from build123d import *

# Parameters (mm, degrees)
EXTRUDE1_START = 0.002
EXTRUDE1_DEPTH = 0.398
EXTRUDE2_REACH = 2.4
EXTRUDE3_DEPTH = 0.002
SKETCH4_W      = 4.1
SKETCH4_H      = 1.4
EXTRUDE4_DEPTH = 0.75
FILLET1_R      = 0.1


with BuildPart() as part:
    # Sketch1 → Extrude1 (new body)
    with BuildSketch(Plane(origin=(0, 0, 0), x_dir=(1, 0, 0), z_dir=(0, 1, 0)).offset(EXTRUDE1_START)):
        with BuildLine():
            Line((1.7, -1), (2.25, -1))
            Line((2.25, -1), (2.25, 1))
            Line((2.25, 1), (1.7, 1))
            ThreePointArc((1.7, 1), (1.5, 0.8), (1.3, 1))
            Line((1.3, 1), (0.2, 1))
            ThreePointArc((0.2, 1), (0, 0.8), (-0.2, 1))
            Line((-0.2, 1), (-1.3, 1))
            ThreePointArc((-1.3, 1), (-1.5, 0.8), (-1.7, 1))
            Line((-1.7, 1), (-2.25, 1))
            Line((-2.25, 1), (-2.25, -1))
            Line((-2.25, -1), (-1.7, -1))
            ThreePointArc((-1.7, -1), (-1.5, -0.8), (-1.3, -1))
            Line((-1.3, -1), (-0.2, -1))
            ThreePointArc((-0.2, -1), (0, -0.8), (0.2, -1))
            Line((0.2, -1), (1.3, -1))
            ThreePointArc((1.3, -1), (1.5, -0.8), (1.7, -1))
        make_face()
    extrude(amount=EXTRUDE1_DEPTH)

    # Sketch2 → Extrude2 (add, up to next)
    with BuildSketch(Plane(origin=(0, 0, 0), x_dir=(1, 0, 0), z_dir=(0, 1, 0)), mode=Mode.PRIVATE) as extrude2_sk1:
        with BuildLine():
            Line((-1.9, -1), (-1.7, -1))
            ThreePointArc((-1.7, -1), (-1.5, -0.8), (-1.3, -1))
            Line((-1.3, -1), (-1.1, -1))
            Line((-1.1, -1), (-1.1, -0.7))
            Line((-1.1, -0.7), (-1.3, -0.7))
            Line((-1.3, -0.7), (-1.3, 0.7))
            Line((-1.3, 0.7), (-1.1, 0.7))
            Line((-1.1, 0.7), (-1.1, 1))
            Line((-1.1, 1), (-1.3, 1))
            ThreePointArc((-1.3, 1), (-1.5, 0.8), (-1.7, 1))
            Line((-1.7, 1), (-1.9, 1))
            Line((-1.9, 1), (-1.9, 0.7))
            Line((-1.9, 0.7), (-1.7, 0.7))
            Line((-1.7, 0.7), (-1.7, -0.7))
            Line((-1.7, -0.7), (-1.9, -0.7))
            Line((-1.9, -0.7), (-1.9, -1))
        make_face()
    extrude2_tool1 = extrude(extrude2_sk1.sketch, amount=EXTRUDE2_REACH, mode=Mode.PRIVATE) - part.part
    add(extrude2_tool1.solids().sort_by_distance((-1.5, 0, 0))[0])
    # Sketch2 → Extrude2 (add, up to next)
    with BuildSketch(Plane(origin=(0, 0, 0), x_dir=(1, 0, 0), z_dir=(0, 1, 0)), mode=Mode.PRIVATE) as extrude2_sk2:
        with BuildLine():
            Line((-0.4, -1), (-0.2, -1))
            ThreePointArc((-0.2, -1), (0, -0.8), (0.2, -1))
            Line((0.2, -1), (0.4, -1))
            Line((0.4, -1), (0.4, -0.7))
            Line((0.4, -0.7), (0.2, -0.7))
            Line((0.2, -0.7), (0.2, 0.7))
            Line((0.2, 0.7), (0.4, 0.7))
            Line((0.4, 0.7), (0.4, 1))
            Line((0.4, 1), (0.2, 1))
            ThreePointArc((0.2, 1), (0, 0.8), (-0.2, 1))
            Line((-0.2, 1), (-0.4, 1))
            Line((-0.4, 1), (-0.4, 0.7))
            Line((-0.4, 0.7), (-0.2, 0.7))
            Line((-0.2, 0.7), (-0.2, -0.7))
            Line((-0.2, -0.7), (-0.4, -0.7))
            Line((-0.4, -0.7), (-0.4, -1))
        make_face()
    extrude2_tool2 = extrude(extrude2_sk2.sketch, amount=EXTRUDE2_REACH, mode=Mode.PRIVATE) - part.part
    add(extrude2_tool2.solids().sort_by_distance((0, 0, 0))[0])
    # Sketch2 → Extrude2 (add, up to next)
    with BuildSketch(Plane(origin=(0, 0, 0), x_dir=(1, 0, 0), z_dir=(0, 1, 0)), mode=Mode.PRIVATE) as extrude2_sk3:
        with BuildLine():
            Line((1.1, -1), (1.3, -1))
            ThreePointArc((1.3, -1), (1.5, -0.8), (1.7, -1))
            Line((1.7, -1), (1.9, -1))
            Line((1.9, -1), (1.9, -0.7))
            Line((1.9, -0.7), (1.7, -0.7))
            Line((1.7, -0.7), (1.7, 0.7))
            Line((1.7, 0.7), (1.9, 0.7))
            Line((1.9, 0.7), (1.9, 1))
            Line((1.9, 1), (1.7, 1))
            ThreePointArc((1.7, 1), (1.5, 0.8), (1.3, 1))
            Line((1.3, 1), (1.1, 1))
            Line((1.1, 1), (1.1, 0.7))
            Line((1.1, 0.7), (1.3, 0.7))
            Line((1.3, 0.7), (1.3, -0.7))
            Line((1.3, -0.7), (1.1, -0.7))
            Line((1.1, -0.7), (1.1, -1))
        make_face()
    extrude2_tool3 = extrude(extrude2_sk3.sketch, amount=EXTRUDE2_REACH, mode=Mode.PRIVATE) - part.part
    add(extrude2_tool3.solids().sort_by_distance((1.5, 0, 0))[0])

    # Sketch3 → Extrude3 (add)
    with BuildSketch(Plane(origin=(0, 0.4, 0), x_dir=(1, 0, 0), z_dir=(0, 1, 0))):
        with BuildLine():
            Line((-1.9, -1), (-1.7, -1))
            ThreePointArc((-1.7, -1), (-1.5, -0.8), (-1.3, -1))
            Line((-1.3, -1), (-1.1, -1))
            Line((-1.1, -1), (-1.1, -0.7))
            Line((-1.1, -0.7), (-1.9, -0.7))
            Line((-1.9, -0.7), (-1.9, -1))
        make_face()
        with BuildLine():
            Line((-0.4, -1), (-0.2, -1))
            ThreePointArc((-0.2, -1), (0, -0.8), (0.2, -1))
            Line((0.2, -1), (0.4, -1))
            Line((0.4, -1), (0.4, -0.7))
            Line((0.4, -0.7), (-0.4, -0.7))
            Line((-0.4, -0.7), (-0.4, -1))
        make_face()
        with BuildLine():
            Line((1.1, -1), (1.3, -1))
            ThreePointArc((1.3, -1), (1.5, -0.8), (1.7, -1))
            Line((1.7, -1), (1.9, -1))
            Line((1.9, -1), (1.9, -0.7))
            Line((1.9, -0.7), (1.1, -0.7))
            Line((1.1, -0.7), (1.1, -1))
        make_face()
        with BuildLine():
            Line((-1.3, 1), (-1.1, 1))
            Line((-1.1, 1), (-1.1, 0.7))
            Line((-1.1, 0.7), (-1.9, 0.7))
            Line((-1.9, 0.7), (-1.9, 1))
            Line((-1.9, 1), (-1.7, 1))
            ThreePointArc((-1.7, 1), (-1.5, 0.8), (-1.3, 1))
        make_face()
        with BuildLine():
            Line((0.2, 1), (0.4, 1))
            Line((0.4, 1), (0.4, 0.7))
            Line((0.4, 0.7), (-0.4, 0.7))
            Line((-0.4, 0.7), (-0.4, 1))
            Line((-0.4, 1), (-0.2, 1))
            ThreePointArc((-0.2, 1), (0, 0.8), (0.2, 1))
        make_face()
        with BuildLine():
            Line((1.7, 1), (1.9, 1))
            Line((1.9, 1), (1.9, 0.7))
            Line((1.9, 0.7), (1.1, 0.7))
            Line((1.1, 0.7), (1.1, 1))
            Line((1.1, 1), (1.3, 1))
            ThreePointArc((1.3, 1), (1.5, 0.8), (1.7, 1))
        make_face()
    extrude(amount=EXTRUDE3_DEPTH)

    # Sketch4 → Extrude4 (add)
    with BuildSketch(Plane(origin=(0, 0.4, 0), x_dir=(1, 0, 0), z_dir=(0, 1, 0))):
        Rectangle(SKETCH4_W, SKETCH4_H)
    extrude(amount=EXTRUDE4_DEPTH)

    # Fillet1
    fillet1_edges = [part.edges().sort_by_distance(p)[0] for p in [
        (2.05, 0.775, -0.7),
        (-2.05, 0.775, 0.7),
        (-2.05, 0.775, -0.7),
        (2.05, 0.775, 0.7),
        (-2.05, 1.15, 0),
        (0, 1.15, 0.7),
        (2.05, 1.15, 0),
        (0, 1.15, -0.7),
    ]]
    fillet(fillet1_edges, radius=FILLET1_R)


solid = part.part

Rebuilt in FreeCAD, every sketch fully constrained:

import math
import FreeCAD as App
import Part
import Sketcher
from FreeCAD import Vector
Q = App.Units.Quantity


def edges_at(feature, points):
    """Names of the edges that pass closest to the given points."""
    edges = feature.Shape.Edges
    near = lambda p: min(range(len(edges)), key=lambda i: edges[i].distToShape(Part.Vertex(*p))[0])
    return sorted({f"Edge{near(p) + 1}" for p in points})


def add_polygon(sketch, points):
    """Adds a closed chain of lines whose ends are joined by coincident constraints."""
    first, n = sketch.GeometryCount, len(points)
    for a, b in zip(points, points[1:] + points[:1]):
        sketch.addGeometry(Part.LineSegment(App.Vector(*a, 0), App.Vector(*b, 0)), False)
    for i in range(n):
        sketch.addConstraint(Sketcher.Constraint("Coincident", first + i, 2, first + (i + 1) % n, 1))

doc = App.newDocument("Part")
body = doc.addObject("PartDesign::Body", "Body")

# Sketch on XZ plane
sketch1 = doc.addObject("Sketcher::SketchObject", "Sketch")
body.addObject(sketch1)
sketch1.AttachmentSupport = (doc.XZ_Plane, [""])
sketch1.MapMode = "FlatFace"
sketch1.AttachmentOffset = App.Placement(Vector(0, 0, -0.002), App.Rotation())
sketch1.addGeometry(Part.LineSegment(Vector(1.7, 1, 0), Vector(2.25, 1, 0)), False)
sketch1.addGeometry(Part.LineSegment(Vector(2.25, 1, 0), Vector(2.25, -1, 0)), False)
sketch1.addGeometry(Part.LineSegment(Vector(2.25, -1, 0), Vector(1.7, -1, 0)), False)
sketch1.addGeometry(Part.ArcOfCircle(Part.Circle(Vector(1.5, -1, 0), Vector(0, 0, 1), 0.2), math.radians(0), math.radians(180)), False)
sketch1.addGeometry(Part.LineSegment(Vector(1.3, -1, 0), Vector(0.2, -1, 0)), False)
sketch1.addGeometry(Part.ArcOfCircle(Part.Circle(Vector(0, -1, 0), Vector(0, 0, 1), 0.2), math.radians(0), math.radians(180)), False)
sketch1.addGeometry(Part.LineSegment(Vector(-0.2, -1, 0), Vector(-1.3, -1, 0)), False)
sketch1.addGeometry(Part.ArcOfCircle(Part.Circle(Vector(-1.5, -1, 0), Vector(0, 0, 1), 0.2), math.radians(0), math.radians(180)), False)
sketch1.addGeometry(Part.LineSegment(Vector(-1.7, -1, 0), Vector(-2.25, -1, 0)), False)
sketch1.addGeometry(Part.LineSegment(Vector(-2.25, -1, 0), Vector(-2.25, 1, 0)), False)
sketch1.addGeometry(Part.LineSegment(Vector(-2.25, 1, 0), Vector(-1.7, 1, 0)), False)
sketch1.addGeometry(Part.ArcOfCircle(Part.Circle(Vector(-1.5, 1, 0), Vector(0, 0, 1), 0.2), math.radians(180), math.radians(360)), False)
sketch1.addGeometry(Part.LineSegment(Vector(-1.3, 1, 0), Vector(-0.2, 1, 0)), False)
sketch1.addGeometry(Part.ArcOfCircle(Part.Circle(Vector(0, 1, 0), Vector(0, 0, 1), 0.2), math.radians(180), math.radians(360)), False)
sketch1.addGeometry(Part.LineSegment(Vector(0.2, 1, 0), Vector(1.3, 1, 0)), False)
sketch1.addGeometry(Part.ArcOfCircle(Part.Circle(Vector(1.5, 1, 0), Vector(0, 0, 1), 0.2), math.radians(180), math.radians(360)), False)
sketch1.addConstraint(Sketcher.Constraint("Coincident", 0, 2, 1, 1))
sketch1.addConstraint(Sketcher.Constraint("Coincident", 1, 2, 2, 1))
sketch1.addConstraint(Sketcher.Constraint("Coincident", 2, 2, 3, 1))
sketch1.addConstraint(Sketcher.Constraint("Coincident", 3, 2, 4, 1))
sketch1.addConstraint(Sketcher.Constraint("Coincident", 4, 2, 5, 1))
sketch1.addConstraint(Sketcher.Constraint("Coincident", 5, 2, 6, 1))
sketch1.addConstraint(Sketcher.Constraint("Coincident", 6, 2, 7, 1))
sketch1.addConstraint(Sketcher.Constraint("Coincident", 7, 2, 8, 1))
sketch1.addConstraint(Sketcher.Constraint("Coincident", 8, 2, 9, 1))
sketch1.addConstraint(Sketcher.Constraint("Coincident", 9, 2, 10, 1))
sketch1.addConstraint(Sketcher.Constraint("Coincident", 10, 2, 11, 1))
sketch1.addConstraint(Sketcher.Constraint("Coincident", 11, 2, 12, 1))
sketch1.addConstraint(Sketcher.Constraint("Coincident", 12, 2, 13, 1))
sketch1.addConstraint(Sketcher.Constraint("Coincident", 13, 2, 14, 1))
sketch1.addConstraint(Sketcher.Constraint("Coincident", 14, 2, 15, 1))
sketch1.addConstraint(Sketcher.Constraint("Coincident", 15, 2, 0, 1))
sketch1.addConstraint(Sketcher.Constraint("Horizontal", 0))
sketch1.addConstraint(Sketcher.Constraint("Vertical", 1))
sketch1.addConstraint(Sketcher.Constraint("Horizontal", 2))
sketch1.addConstraint(Sketcher.Constraint("Horizontal", 4))
sketch1.addConstraint(Sketcher.Constraint("Horizontal", 6))
sketch1.addConstraint(Sketcher.Constraint("Horizontal", 8))
sketch1.addConstraint(Sketcher.Constraint("Vertical", 9))
sketch1.addConstraint(Sketcher.Constraint("Horizontal", 10))
sketch1.addConstraint(Sketcher.Constraint("Horizontal", 12))
sketch1.addConstraint(Sketcher.Constraint("Horizontal", 14))
sketch1.addConstraint(Sketcher.Constraint("Equal", 3, 5))
sketch1.addConstraint(Sketcher.Constraint("Equal", 5, 7))
sketch1.addConstraint(Sketcher.Constraint("Equal", 7, 11))
sketch1.addConstraint(Sketcher.Constraint("Equal", 11, 13))
sketch1.addConstraint(Sketcher.Constraint("Equal", 13, 15))
sketch1.addConstraint(Sketcher.Constraint("Symmetric", 3, 3, 11, 3, -1, 1))
sketch1.addConstraint(Sketcher.Constraint("Symmetric", 5, 3, 13, 3, -1, 1))
sketch1.addConstraint(Sketcher.Constraint("Symmetric", 7, 3, 15, 3, -1, 1))
sketch1.addConstraint(Sketcher.Constraint("Symmetric", 0, 2, 8, 2, -1, 1))
sketch1.addConstraint(Sketcher.Constraint("Symmetric", 3, 3, 7, 3, -2))
sketch1.addConstraint(Sketcher.Constraint("Symmetric", 4, 2, 5, 2, -2))
sketch1.addConstraint(Sketcher.Constraint("Horizontal", 3, 3, 5, 3))
sketch1.addConstraint(Sketcher.Constraint("Horizontal", 15, 3, 0, 2))
sketch1.addConstraint(Sketcher.Constraint("Horizontal", 7, 3, 1, 2))
sketch1.addConstraint(Sketcher.Constraint("Horizontal", 2, 2, 3, 2))
sketch1.addConstraint(Sketcher.Constraint("Horizontal", 0, 2, 9, 2))
sketch1.addConstraint(Sketcher.Constraint("Horizontal", 10, 2, 11, 2))
sketch1.addConstraint(Sketcher.Constraint("Horizontal", 12, 2, 13, 2))
sketch1.addConstraint(Sketcher.Constraint("Radius", 3, Q("0.2 mm")))
sketch1.addConstraint(Sketcher.Constraint("DistanceY", 1, 2, 1, 1, Q("2 mm")))
sketch1.addConstraint(Sketcher.Constraint("DistanceX", 4, 2, 4, 1, Q("1.1 mm")))
sketch1.addConstraint(Sketcher.Constraint("DistanceX", 0, 1, 0, 2, Q("0.55 mm")))
pad1 = doc.addObject("PartDesign::Pad", "Pad")
body.addObject(pad1)
pad1.Profile = sketch1
pad1.Length = 0.398
pad1.Reversed = True

# Sketch on XZ plane
sketch2 = doc.addObject("Sketcher::SketchObject", "Sketch001")
body.addObject(sketch2)
sketch2.AttachmentSupport = (doc.XZ_Plane, [""])
sketch2.MapMode = "FlatFace"
sketch2.addGeometry(Part.LineSegment(Vector(-1.9, 1, 0), Vector(-1.7, 1, 0)), False)
sketch2.addGeometry(Part.ArcOfCircle(Part.Circle(Vector(-1.5, 1, 0), Vector(0, 0, 1), 0.2), math.radians(180), math.radians(360)), False)
sketch2.addGeometry(Part.LineSegment(Vector(-1.3, 1, 0), Vector(-1.1, 1, 0)), False)
sketch2.addGeometry(Part.LineSegment(Vector(-1.1, 1, 0), Vector(-1.1, 0.7, 0)), False)
sketch2.addGeometry(Part.LineSegment(Vector(-1.1, 0.7, 0), Vector(-1.3, 0.7, 0)), False)
sketch2.addGeometry(Part.LineSegment(Vector(-1.3, 0.7, 0), Vector(-1.3, -0.7, 0)), False)
sketch2.addGeometry(Part.LineSegment(Vector(-1.3, -0.7, 0), Vector(-1.1, -0.7, 0)), False)
sketch2.addGeometry(Part.LineSegment(Vector(-1.1, -0.7, 0), Vector(-1.1, -1, 0)), False)
sketch2.addGeometry(Part.LineSegment(Vector(-1.1, -1, 0), Vector(-1.3, -1, 0)), False)
sketch2.addGeometry(Part.ArcOfCircle(Part.Circle(Vector(-1.5, -1, 0), Vector(0, 0, 1), 0.2), math.radians(0), math.radians(180)), False)
sketch2.addGeometry(Part.LineSegment(Vector(-1.7, -1, 0), Vector(-1.9, -1, 0)), False)
sketch2.addGeometry(Part.LineSegment(Vector(-1.9, -1, 0), Vector(-1.9, -0.7, 0)), False)
sketch2.addGeometry(Part.LineSegment(Vector(-1.9, -0.7, 0), Vector(-1.7, -0.7, 0)), False)
sketch2.addGeometry(Part.LineSegment(Vector(-1.7, -0.7, 0), Vector(-1.7, 0.7, 0)), False)
sketch2.addGeometry(Part.LineSegment(Vector(-1.7, 0.7, 0), Vector(-1.9, 0.7, 0)), False)
sketch2.addGeometry(Part.LineSegment(Vector(-1.9, 0.7, 0), Vector(-1.9, 1, 0)), False)
sketch2.addConstraint(Sketcher.Constraint("Coincident", 0, 2, 1, 1))
sketch2.addConstraint(Sketcher.Constraint("Coincident", 1, 2, 2, 1))
sketch2.addConstraint(Sketcher.Constraint("Coincident", 2, 2, 3, 1))
sketch2.addConstraint(Sketcher.Constraint("Coincident", 3, 2, 4, 1))
sketch2.addConstraint(Sketcher.Constraint("Coincident", 4, 2, 5, 1))
sketch2.addConstraint(Sketcher.Constraint("Coincident", 5, 2, 6, 1))
sketch2.addConstraint(Sketcher.Constraint("Coincident", 6, 2, 7, 1))
sketch2.addConstraint(Sketcher.Constraint("Coincident", 7, 2, 8, 1))
sketch2.addConstraint(Sketcher.Constraint("Coincident", 8, 2, 9, 1))
sketch2.addConstraint(Sketcher.Constraint("Coincident", 9, 2, 10, 1))
sketch2.addConstraint(Sketcher.Constraint("Coincident", 10, 2, 11, 1))
sketch2.addConstraint(Sketcher.Constraint("Coincident", 11, 2, 12, 1))
sketch2.addConstraint(Sketcher.Constraint("Coincident", 12, 2, 13, 1))
sketch2.addConstraint(Sketcher.Constraint("Coincident", 13, 2, 14, 1))
sketch2.addConstraint(Sketcher.Constraint("Coincident", 14, 2, 15, 1))
sketch2.addConstraint(Sketcher.Constraint("Coincident", 15, 2, 0, 1))
sketch2.addConstraint(Sketcher.Constraint("Horizontal", 0))
sketch2.addConstraint(Sketcher.Constraint("Horizontal", 2))
sketch2.addConstraint(Sketcher.Constraint("Vertical", 3))
sketch2.addConstraint(Sketcher.Constraint("Horizontal", 4))
sketch2.addConstraint(Sketcher.Constraint("Vertical", 5))
sketch2.addConstraint(Sketcher.Constraint("Horizontal", 6))
sketch2.addConstraint(Sketcher.Constraint("Vertical", 7))
sketch2.addConstraint(Sketcher.Constraint("Horizontal", 8))
sketch2.addConstraint(Sketcher.Constraint("Horizontal", 10))
sketch2.addConstraint(Sketcher.Constraint("Vertical", 11))
sketch2.addConstraint(Sketcher.Constraint("Horizontal", 12))
sketch2.addConstraint(Sketcher.Constraint("Vertical", 13))
sketch2.addConstraint(Sketcher.Constraint("Horizontal", 14))
sketch2.addConstraint(Sketcher.Constraint("Vertical", 15))
sketch2.addConstraint(Sketcher.Constraint("Equal", 1, 9))
sketch2.addConstraint(Sketcher.Constraint("Symmetric", 1, 3, 9, 3, -1))
sketch2.addConstraint(Sketcher.Constraint("Symmetric", 3, 2, 6, 2, -1))
sketch2.addConstraint(Sketcher.Constraint("Symmetric", 11, 2, 14, 2, -1))
sketch2.addConstraint(Sketcher.Constraint("Horizontal", 1, 3, 0, 2))
sketch2.addConstraint(Sketcher.Constraint("Horizontal", 0, 2, 1, 2))
sketch2.addConstraint(Sketcher.Constraint("Horizontal", 9, 3, 7, 2))
sketch2.addConstraint(Sketcher.Constraint("Horizontal", 8, 2, 9, 2))
sketch2.addConstraint(Sketcher.Constraint("Horizontal", 6, 2, 11, 2))
sketch2.addConstraint(Sketcher.Constraint("Vertical", 1, 2, 4, 2))
sketch2.addConstraint(Sketcher.Constraint("Vertical", 9, 2, 12, 2))
sketch2.addConstraint(Sketcher.Constraint("Equal", 0, 2))
sketch2.addConstraint(Sketcher.Constraint("Radius", 1, Q("0.2 mm")))
sketch2.addConstraint(Sketcher.Constraint("DistanceX", 0, 1, 0, 2, Q("0.2 mm")))
sketch2.addConstraint(Sketcher.Constraint("DistanceY", 3, 2, 3, 1, Q("0.3 mm")))
sketch2.addConstraint(Sketcher.Constraint("DistanceY", 5, 2, 5, 1, Q("1.4 mm")))
sketch2.addConstraint(Sketcher.Constraint("DistanceX", 1, 3, -1, 1, Q("1.5 mm")))
pad2 = doc.addObject("PartDesign::Pad", "Pad001")
body.addObject(pad2)
pad2.Profile = sketch2
pad2.Type = "UpToFirst"
pad2.Reversed = True

# Sketch on XZ plane
sketch3 = doc.addObject("Sketcher::SketchObject", "Sketch002")
body.addObject(sketch3)
sketch3.AttachmentSupport = (doc.XZ_Plane, [""])
sketch3.MapMode = "FlatFace"
sketch3.addGeometry(Part.LineSegment(Vector(-0.4, 1, 0), Vector(-0.2, 1, 0)), False)
sketch3.addGeometry(Part.ArcOfCircle(Part.Circle(Vector(0, 1, 0), Vector(0, 0, 1), 0.2), math.radians(180), math.radians(360)), False)
sketch3.addGeometry(Part.LineSegment(Vector(0.2, 1, 0), Vector(0.4, 1, 0)), False)
sketch3.addGeometry(Part.LineSegment(Vector(0.4, 1, 0), Vector(0.4, 0.7, 0)), False)
sketch3.addGeometry(Part.LineSegment(Vector(0.4, 0.7, 0), Vector(0.2, 0.7, 0)), False)
sketch3.addGeometry(Part.LineSegment(Vector(0.2, 0.7, 0), Vector(0.2, -0.7, 0)), False)
sketch3.addGeometry(Part.LineSegment(Vector(0.2, -0.7, 0), Vector(0.4, -0.7, 0)), False)
sketch3.addGeometry(Part.LineSegment(Vector(0.4, -0.7, 0), Vector(0.4, -1, 0)), False)
sketch3.addGeometry(Part.LineSegment(Vector(0.4, -1, 0), Vector(0.2, -1, 0)), False)
sketch3.addGeometry(Part.ArcOfCircle(Part.Circle(Vector(0, -1, 0), Vector(0, 0, 1), 0.2), math.radians(0), math.radians(180)), False)
sketch3.addGeometry(Part.LineSegment(Vector(-0.2, -1, 0), Vector(-0.4, -1, 0)), False)
sketch3.addGeometry(Part.LineSegment(Vector(-0.4, -1, 0), Vector(-0.4, -0.7, 0)), False)
sketch3.addGeometry(Part.LineSegment(Vector(-0.4, -0.7, 0), Vector(-0.2, -0.7, 0)), False)
sketch3.addGeometry(Part.LineSegment(Vector(-0.2, -0.7, 0), Vector(-0.2, 0.7, 0)), False)
sketch3.addGeometry(Part.LineSegment(Vector(-0.2, 0.7, 0), Vector(-0.4, 0.7, 0)), False)
sketch3.addGeometry(Part.LineSegment(Vector(-0.4, 0.7, 0), Vector(-0.4, 1, 0)), False)
sketch3.addConstraint(Sketcher.Constraint("Coincident", 0, 2, 1, 1))
sketch3.addConstraint(Sketcher.Constraint("Coincident", 1, 2, 2, 1))
sketch3.addConstraint(Sketcher.Constraint("Coincident", 2, 2, 3, 1))
sketch3.addConstraint(Sketcher.Constraint("Coincident", 3, 2, 4, 1))
sketch3.addConstraint(Sketcher.Constraint("Coincident", 4, 2, 5, 1))
sketch3.addConstraint(Sketcher.Constraint("Coincident", 5, 2, 6, 1))
sketch3.addConstraint(Sketcher.Constraint("Coincident", 6, 2, 7, 1))
sketch3.addConstraint(Sketcher.Constraint("Coincident", 7, 2, 8, 1))
sketch3.addConstraint(Sketcher.Constraint("Coincident", 8, 2, 9, 1))
sketch3.addConstraint(Sketcher.Constraint("Coincident", 9, 2, 10, 1))
sketch3.addConstraint(Sketcher.Constraint("Coincident", 10, 2, 11, 1))
sketch3.addConstraint(Sketcher.Constraint("Coincident", 11, 2, 12, 1))
sketch3.addConstraint(Sketcher.Constraint("Coincident", 12, 2, 13, 1))
sketch3.addConstraint(Sketcher.Constraint("Coincident", 13, 2, 14, 1))
sketch3.addConstraint(Sketcher.Constraint("Coincident", 14, 2, 15, 1))
sketch3.addConstraint(Sketcher.Constraint("Coincident", 15, 2, 0, 1))
sketch3.addConstraint(Sketcher.Constraint("Horizontal", 0))
sketch3.addConstraint(Sketcher.Constraint("Horizontal", 2))
sketch3.addConstraint(Sketcher.Constraint("Vertical", 3))
sketch3.addConstraint(Sketcher.Constraint("Horizontal", 4))
sketch3.addConstraint(Sketcher.Constraint("Vertical", 5))
sketch3.addConstraint(Sketcher.Constraint("Horizontal", 6))
sketch3.addConstraint(Sketcher.Constraint("Vertical", 7))
sketch3.addConstraint(Sketcher.Constraint("Horizontal", 8))
sketch3.addConstraint(Sketcher.Constraint("Horizontal", 10))
sketch3.addConstraint(Sketcher.Constraint("Vertical", 11))
sketch3.addConstraint(Sketcher.Constraint("Horizontal", 12))
sketch3.addConstraint(Sketcher.Constraint("Vertical", 13))
sketch3.addConstraint(Sketcher.Constraint("Horizontal", 14))
sketch3.addConstraint(Sketcher.Constraint("Vertical", 15))
sketch3.addConstraint(Sketcher.Constraint("Equal", 1, 9))
sketch3.addConstraint(Sketcher.Constraint("Symmetric", 1, 3, 9, 3, -1, 1))
sketch3.addConstraint(Sketcher.Constraint("Symmetric", 2, 2, 10, 2, -1, 1))
sketch3.addConstraint(Sketcher.Constraint("Symmetric", 4, 2, 12, 2, -1, 1))
sketch3.addConstraint(Sketcher.Constraint("Symmetric", 6, 2, 14, 2, -1, 1))
sketch3.addConstraint(Sketcher.Constraint("Symmetric", 0, 2, 1, 2, -2))
sketch3.addConstraint(Sketcher.Constraint("Symmetric", 7, 2, 10, 2, -2))
sketch3.addConstraint(Sketcher.Constraint("Horizontal", 1, 3, 0, 2))
sketch3.addConstraint(Sketcher.Constraint("Horizontal", 6, 2, 11, 2))
sketch3.addConstraint(Sketcher.Constraint("Vertical", 1, 2, 4, 2))
sketch3.addConstraint(Sketcher.Constraint("Radius", 1, Q("0.2 mm")))
sketch3.addConstraint(Sketcher.Constraint("DistanceX", 0, 1, 0, 2, Q("0.2 mm")))
sketch3.addConstraint(Sketcher.Constraint("DistanceY", 3, 2, 3, 1, Q("0.3 mm")))
sketch3.addConstraint(Sketcher.Constraint("DistanceY", 5, 2, 5, 1, Q("1.4 mm")))
pad3 = doc.addObject("PartDesign::Pad", "Pad002")
body.addObject(pad3)
pad3.Profile = sketch3
pad3.Type = "UpToFirst"
pad3.Reversed = True

# Sketch on XZ plane
sketch4 = doc.addObject("Sketcher::SketchObject", "Sketch003")
body.addObject(sketch4)
sketch4.AttachmentSupport = (doc.XZ_Plane, [""])
sketch4.MapMode = "FlatFace"
sketch4.addGeometry(Part.LineSegment(Vector(1.1, 1, 0), Vector(1.3, 1, 0)), False)
sketch4.addGeometry(Part.ArcOfCircle(Part.Circle(Vector(1.5, 1, 0), Vector(0, 0, 1), 0.2), math.radians(180), math.radians(360)), False)
sketch4.addGeometry(Part.LineSegment(Vector(1.7, 1, 0), Vector(1.9, 1, 0)), False)
sketch4.addGeometry(Part.LineSegment(Vector(1.9, 1, 0), Vector(1.9, 0.7, 0)), False)
sketch4.addGeometry(Part.LineSegment(Vector(1.9, 0.7, 0), Vector(1.7, 0.7, 0)), False)
sketch4.addGeometry(Part.LineSegment(Vector(1.7, 0.7, 0), Vector(1.7, -0.7, 0)), False)
sketch4.addGeometry(Part.LineSegment(Vector(1.7, -0.7, 0), Vector(1.9, -0.7, 0)), False)
sketch4.addGeometry(Part.LineSegment(Vector(1.9, -0.7, 0), Vector(1.9, -1, 0)), False)
sketch4.addGeometry(Part.LineSegment(Vector(1.9, -1, 0), Vector(1.7, -1, 0)), False)
sketch4.addGeometry(Part.ArcOfCircle(Part.Circle(Vector(1.5, -1, 0), Vector(0, 0, 1), 0.2), math.radians(0), math.radians(180)), False)
sketch4.addGeometry(Part.LineSegment(Vector(1.3, -1, 0), Vector(1.1, -1, 0)), False)
sketch4.addGeometry(Part.LineSegment(Vector(1.1, -1, 0), Vector(1.1, -0.7, 0)), False)
sketch4.addGeometry(Part.LineSegment(Vector(1.1, -0.7, 0), Vector(1.3, -0.7, 0)), False)
sketch4.addGeometry(Part.LineSegment(Vector(1.3, -0.7, 0), Vector(1.3, 0.7, 0)), False)
sketch4.addGeometry(Part.LineSegment(Vector(1.3, 0.7, 0), Vector(1.1, 0.7, 0)), False)
sketch4.addGeometry(Part.LineSegment(Vector(1.1, 0.7, 0), Vector(1.1, 1, 0)), False)
sketch4.addConstraint(Sketcher.Constraint("Coincident", 0, 2, 1, 1))
sketch4.addConstraint(Sketcher.Constraint("Coincident", 1, 2, 2, 1))
sketch4.addConstraint(Sketcher.Constraint("Coincident", 2, 2, 3, 1))
sketch4.addConstraint(Sketcher.Constraint("Coincident", 3, 2, 4, 1))
sketch4.addConstraint(Sketcher.Constraint("Coincident", 4, 2, 5, 1))
sketch4.addConstraint(Sketcher.Constraint("Coincident", 5, 2, 6, 1))
sketch4.addConstraint(Sketcher.Constraint("Coincident", 6, 2, 7, 1))
sketch4.addConstraint(Sketcher.Constraint("Coincident", 7, 2, 8, 1))
sketch4.addConstraint(Sketcher.Constraint("Coincident", 8, 2, 9, 1))
sketch4.addConstraint(Sketcher.Constraint("Coincident", 9, 2, 10, 1))
sketch4.addConstraint(Sketcher.Constraint("Coincident", 10, 2, 11, 1))
sketch4.addConstraint(Sketcher.Constraint("Coincident", 11, 2, 12, 1))
sketch4.addConstraint(Sketcher.Constraint("Coincident", 12, 2, 13, 1))
sketch4.addConstraint(Sketcher.Constraint("Coincident", 13, 2, 14, 1))
sketch4.addConstraint(Sketcher.Constraint("Coincident", 14, 2, 15, 1))
sketch4.addConstraint(Sketcher.Constraint("Coincident", 15, 2, 0, 1))
sketch4.addConstraint(Sketcher.Constraint("Horizontal", 0))
sketch4.addConstraint(Sketcher.Constraint("Horizontal", 2))
sketch4.addConstraint(Sketcher.Constraint("Vertical", 3))
sketch4.addConstraint(Sketcher.Constraint("Horizontal", 4))
sketch4.addConstraint(Sketcher.Constraint("Vertical", 5))
sketch4.addConstraint(Sketcher.Constraint("Horizontal", 6))
sketch4.addConstraint(Sketcher.Constraint("Vertical", 7))
sketch4.addConstraint(Sketcher.Constraint("Horizontal", 8))
sketch4.addConstraint(Sketcher.Constraint("Horizontal", 10))
sketch4.addConstraint(Sketcher.Constraint("Vertical", 11))
sketch4.addConstraint(Sketcher.Constraint("Horizontal", 12))
sketch4.addConstraint(Sketcher.Constraint("Vertical", 13))
sketch4.addConstraint(Sketcher.Constraint("Horizontal", 14))
sketch4.addConstraint(Sketcher.Constraint("Vertical", 15))
sketch4.addConstraint(Sketcher.Constraint("Equal", 1, 9))
sketch4.addConstraint(Sketcher.Constraint("Symmetric", 1, 3, 9, 3, -1))
sketch4.addConstraint(Sketcher.Constraint("Symmetric", 3, 2, 6, 2, -1))
sketch4.addConstraint(Sketcher.Constraint("Symmetric", 11, 2, 14, 2, -1))
sketch4.addConstraint(Sketcher.Constraint("Horizontal", 1, 3, 0, 2))
sketch4.addConstraint(Sketcher.Constraint("Horizontal", 0, 2, 1, 2))
sketch4.addConstraint(Sketcher.Constraint("Horizontal", 9, 3, 7, 2))
sketch4.addConstraint(Sketcher.Constraint("Horizontal", 8, 2, 9, 2))
sketch4.addConstraint(Sketcher.Constraint("Horizontal", 6, 2, 11, 2))
sketch4.addConstraint(Sketcher.Constraint("Vertical", 1, 2, 4, 2))
sketch4.addConstraint(Sketcher.Constraint("Vertical", 9, 2, 12, 2))
sketch4.addConstraint(Sketcher.Constraint("Equal", 0, 2))
sketch4.addConstraint(Sketcher.Constraint("Radius", 1, Q("0.2 mm")))
sketch4.addConstraint(Sketcher.Constraint("DistanceX", 0, 1, 0, 2, Q("0.2 mm")))
sketch4.addConstraint(Sketcher.Constraint("DistanceY", 3, 2, 3, 1, Q("0.3 mm")))
sketch4.addConstraint(Sketcher.Constraint("DistanceY", 5, 2, 5, 1, Q("1.4 mm")))
sketch4.addConstraint(Sketcher.Constraint("DistanceX", -1, 1, 1, 3, Q("1.5 mm")))
pad4 = doc.addObject("PartDesign::Pad", "Pad003")
body.addObject(pad4)
pad4.Profile = sketch4
pad4.Type = "UpToFirst"
pad4.Reversed = True

# Sketch on XZ plane
sketch5 = doc.addObject("Sketcher::SketchObject", "Sketch004")
body.addObject(sketch5)
sketch5.AttachmentSupport = (doc.XZ_Plane, [""])
sketch5.MapMode = "FlatFace"
sketch5.AttachmentOffset = App.Placement(Vector(0, 0, -0.4), App.Rotation())
sketch5.addGeometry(Part.LineSegment(Vector(-1.9, 1, 0), Vector(-1.7, 1, 0)), False)
sketch5.addGeometry(Part.ArcOfCircle(Part.Circle(Vector(-1.5, 1, 0), Vector(0, 0, 1), 0.2), math.radians(180), math.radians(360)), False)
sketch5.addGeometry(Part.LineSegment(Vector(-1.3, 1, 0), Vector(-1.1, 1, 0)), False)
sketch5.addGeometry(Part.LineSegment(Vector(-1.1, 1, 0), Vector(-1.1, 0.7, 0)), False)
sketch5.addGeometry(Part.LineSegment(Vector(-1.1, 0.7, 0), Vector(-1.9, 0.7, 0)), False)
sketch5.addGeometry(Part.LineSegment(Vector(-1.9, 0.7, 0), Vector(-1.9, 1, 0)), False)
sketch5.addGeometry(Part.LineSegment(Vector(-0.4, 1, 0), Vector(-0.2, 1, 0)), False)
sketch5.addGeometry(Part.ArcOfCircle(Part.Circle(Vector(0, 1, 0), Vector(0, 0, 1), 0.2), math.radians(180), math.radians(360)), False)
sketch5.addGeometry(Part.LineSegment(Vector(0.2, 1, 0), Vector(0.4, 1, 0)), False)
sketch5.addGeometry(Part.LineSegment(Vector(0.4, 1, 0), Vector(0.4, 0.7, 0)), False)
sketch5.addGeometry(Part.LineSegment(Vector(0.4, 0.7, 0), Vector(-0.4, 0.7, 0)), False)
sketch5.addGeometry(Part.LineSegment(Vector(-0.4, 0.7, 0), Vector(-0.4, 1, 0)), False)
sketch5.addGeometry(Part.LineSegment(Vector(1.1, 1, 0), Vector(1.3, 1, 0)), False)
sketch5.addGeometry(Part.ArcOfCircle(Part.Circle(Vector(1.5, 1, 0), Vector(0, 0, 1), 0.2), math.radians(180), math.radians(360)), False)
sketch5.addGeometry(Part.LineSegment(Vector(1.7, 1, 0), Vector(1.9, 1, 0)), False)
sketch5.addGeometry(Part.LineSegment(Vector(1.9, 1, 0), Vector(1.9, 0.7, 0)), False)
sketch5.addGeometry(Part.LineSegment(Vector(1.9, 0.7, 0), Vector(1.1, 0.7, 0)), False)
sketch5.addGeometry(Part.LineSegment(Vector(1.1, 0.7, 0), Vector(1.1, 1, 0)), False)
sketch5.addGeometry(Part.LineSegment(Vector(-1.1, -1, 0), Vector(-1.3, -1, 0)), False)
sketch5.addGeometry(Part.ArcOfCircle(Part.Circle(Vector(-1.5, -1, 0), Vector(0, 0, 1), 0.2), math.radians(0), math.radians(180)), False)
sketch5.addGeometry(Part.LineSegment(Vector(-1.7, -1, 0), Vector(-1.9, -1, 0)), False)
sketch5.addGeometry(Part.LineSegment(Vector(-1.9, -1, 0), Vector(-1.9, -0.7, 0)), False)
sketch5.addGeometry(Part.LineSegment(Vector(-1.9, -0.7, 0), Vector(-1.1, -0.7, 0)), False)
sketch5.addGeometry(Part.LineSegment(Vector(-1.1, -0.7, 0), Vector(-1.1, -1, 0)), False)
sketch5.addGeometry(Part.LineSegment(Vector(0.4, -1, 0), Vector(0.2, -1, 0)), False)
sketch5.addGeometry(Part.ArcOfCircle(Part.Circle(Vector(0, -1, 0), Vector(0, 0, 1), 0.2), math.radians(0), math.radians(180)), False)
sketch5.addGeometry(Part.LineSegment(Vector(-0.2, -1, 0), Vector(-0.4, -1, 0)), False)
sketch5.addGeometry(Part.LineSegment(Vector(-0.4, -1, 0), Vector(-0.4, -0.7, 0)), False)
sketch5.addGeometry(Part.LineSegment(Vector(-0.4, -0.7, 0), Vector(0.4, -0.7, 0)), False)
sketch5.addGeometry(Part.LineSegment(Vector(0.4, -0.7, 0), Vector(0.4, -1, 0)), False)
sketch5.addGeometry(Part.LineSegment(Vector(1.9, -1, 0), Vector(1.7, -1, 0)), False)
sketch5.addGeometry(Part.ArcOfCircle(Part.Circle(Vector(1.5, -1, 0), Vector(0, 0, 1), 0.2), math.radians(0), math.radians(180)), False)
sketch5.addGeometry(Part.LineSegment(Vector(1.3, -1, 0), Vector(1.1, -1, 0)), False)
sketch5.addGeometry(Part.LineSegment(Vector(1.1, -1, 0), Vector(1.1, -0.7, 0)), False)
sketch5.addGeometry(Part.LineSegment(Vector(1.1, -0.7, 0), Vector(1.9, -0.7, 0)), False)
sketch5.addGeometry(Part.LineSegment(Vector(1.9, -0.7, 0), Vector(1.9, -1, 0)), False)
sketch5.addConstraint(Sketcher.Constraint("Coincident", 0, 2, 1, 1))
sketch5.addConstraint(Sketcher.Constraint("Coincident", 1, 2, 2, 1))
sketch5.addConstraint(Sketcher.Constraint("Coincident", 2, 2, 3, 1))
sketch5.addConstraint(Sketcher.Constraint("Coincident", 3, 2, 4, 1))
sketch5.addConstraint(Sketcher.Constraint("Coincident", 4, 2, 5, 1))
sketch5.addConstraint(Sketcher.Constraint("Coincident", 5, 2, 0, 1))
sketch5.addConstraint(Sketcher.Constraint("Coincident", 6, 2, 7, 1))
sketch5.addConstraint(Sketcher.Constraint("Coincident", 7, 2, 8, 1))
sketch5.addConstraint(Sketcher.Constraint("Coincident", 8, 2, 9, 1))
sketch5.addConstraint(Sketcher.Constraint("Coincident", 9, 2, 10, 1))
sketch5.addConstraint(Sketcher.Constraint("Coincident", 10, 2, 11, 1))
sketch5.addConstraint(Sketcher.Constraint("Coincident", 11, 2, 6, 1))
sketch5.addConstraint(Sketcher.Constraint("Coincident", 12, 2, 13, 1))
sketch5.addConstraint(Sketcher.Constraint("Coincident", 13, 2, 14, 1))
sketch5.addConstraint(Sketcher.Constraint("Coincident", 14, 2, 15, 1))
sketch5.addConstraint(Sketcher.Constraint("Coincident", 15, 2, 16, 1))
sketch5.addConstraint(Sketcher.Constraint("Coincident", 16, 2, 17, 1))
sketch5.addConstraint(Sketcher.Constraint("Coincident", 17, 2, 12, 1))
sketch5.addConstraint(Sketcher.Constraint("Coincident", 18, 2, 19, 1))
sketch5.addConstraint(Sketcher.Constraint("Coincident", 19, 2, 20, 1))
sketch5.addConstraint(Sketcher.Constraint("Coincident", 20, 2, 21, 1))
sketch5.addConstraint(Sketcher.Constraint("Coincident", 21, 2, 22, 1))
sketch5.addConstraint(Sketcher.Constraint("Coincident", 22, 2, 23, 1))
sketch5.addConstraint(Sketcher.Constraint("Coincident", 23, 2, 18, 1))
sketch5.addConstraint(Sketcher.Constraint("Coincident", 24, 2, 25, 1))
sketch5.addConstraint(Sketcher.Constraint("Coincident", 25, 2, 26, 1))
sketch5.addConstraint(Sketcher.Constraint("Coincident", 26, 2, 27, 1))
sketch5.addConstraint(Sketcher.Constraint("Coincident", 27, 2, 28, 1))
sketch5.addConstraint(Sketcher.Constraint("Coincident", 28, 2, 29, 1))
sketch5.addConstraint(Sketcher.Constraint("Coincident", 29, 2, 24, 1))
sketch5.addConstraint(Sketcher.Constraint("Coincident", 30, 2, 31, 1))
sketch5.addConstraint(Sketcher.Constraint("Coincident", 31, 2, 32, 1))
sketch5.addConstraint(Sketcher.Constraint("Coincident", 32, 2, 33, 1))
sketch5.addConstraint(Sketcher.Constraint("Coincident", 33, 2, 34, 1))
sketch5.addConstraint(Sketcher.Constraint("Coincident", 34, 2, 35, 1))
sketch5.addConstraint(Sketcher.Constraint("Coincident", 35, 2, 30, 1))
sketch5.addConstraint(Sketcher.Constraint("Horizontal", 0))
sketch5.addConstraint(Sketcher.Constraint("Horizontal", 2))
sketch5.addConstraint(Sketcher.Constraint("Vertical", 3))
sketch5.addConstraint(Sketcher.Constraint("Horizontal", 4))
sketch5.addConstraint(Sketcher.Constraint("Vertical", 5))
sketch5.addConstraint(Sketcher.Constraint("Horizontal", 6))
sketch5.addConstraint(Sketcher.Constraint("Horizontal", 8))
sketch5.addConstraint(Sketcher.Constraint("Vertical", 9))
sketch5.addConstraint(Sketcher.Constraint("Horizontal", 10))
sketch5.addConstraint(Sketcher.Constraint("Vertical", 11))
sketch5.addConstraint(Sketcher.Constraint("Horizontal", 12))
sketch5.addConstraint(Sketcher.Constraint("Horizontal", 14))
sketch5.addConstraint(Sketcher.Constraint("Vertical", 15))
sketch5.addConstraint(Sketcher.Constraint("Horizontal", 16))
sketch5.addConstraint(Sketcher.Constraint("Vertical", 17))
sketch5.addConstraint(Sketcher.Constraint("Horizontal", 18))
sketch5.addConstraint(Sketcher.Constraint("Horizontal", 20))
sketch5.addConstraint(Sketcher.Constraint("Vertical", 21))
sketch5.addConstraint(Sketcher.Constraint("Horizontal", 22))
sketch5.addConstraint(Sketcher.Constraint("Vertical", 23))
sketch5.addConstraint(Sketcher.Constraint("Horizontal", 24))
sketch5.addConstraint(Sketcher.Constraint("Horizontal", 26))
sketch5.addConstraint(Sketcher.Constraint("Vertical", 27))
sketch5.addConstraint(Sketcher.Constraint("Horizontal", 28))
sketch5.addConstraint(Sketcher.Constraint("Vertical", 29))
sketch5.addConstraint(Sketcher.Constraint("Horizontal", 30))
sketch5.addConstraint(Sketcher.Constraint("Horizontal", 32))
sketch5.addConstraint(Sketcher.Constraint("Vertical", 33))
sketch5.addConstraint(Sketcher.Constraint("Horizontal", 34))
sketch5.addConstraint(Sketcher.Constraint("Vertical", 35))
sketch5.addConstraint(Sketcher.Constraint("Equal", 1, 7))
sketch5.addConstraint(Sketcher.Constraint("Equal", 7, 13))
sketch5.addConstraint(Sketcher.Constraint("Equal", 13, 19))
sketch5.addConstraint(Sketcher.Constraint("Equal", 19, 25))
sketch5.addConstraint(Sketcher.Constraint("Equal", 25, 31))
sketch5.addConstraint(Sketcher.Constraint("Symmetric", 13, 3, 19, 3, -1, 1))
sketch5.addConstraint(Sketcher.Constraint("Symmetric", 7, 3, 25, 3, -1, 1))
sketch5.addConstraint(Sketcher.Constraint("Symmetric", 1, 3, 31, 3, -1, 1))
sketch5.addConstraint(Sketcher.Constraint("Symmetric", 14, 2, 20, 2, -1, 1))
sketch5.addConstraint(Sketcher.Constraint("Symmetric", 16, 2, 22, 2, -1, 1))
sketch5.addConstraint(Sketcher.Constraint("Symmetric", 8, 2, 26, 2, -1, 1))
sketch5.addConstraint(Sketcher.Constraint("Symmetric", 10, 2, 28, 2, -1, 1))
sketch5.addConstraint(Sketcher.Constraint("Symmetric", 2, 2, 32, 2, -1, 1))
sketch5.addConstraint(Sketcher.Constraint("Symmetric", 4, 2, 34, 2, -1, 1))
sketch5.addConstraint(Sketcher.Constraint("Symmetric", 1, 3, 13, 3, -2))
sketch5.addConstraint(Sketcher.Constraint("Symmetric", 6, 2, 7, 2, -2))
sketch5.addConstraint(Sketcher.Constraint("Symmetric", 5, 2, 14, 2, -2))
sketch5.addConstraint(Sketcher.Constraint("Symmetric", 3, 2, 16, 2, -2))
sketch5.addConstraint(Sketcher.Constraint("Symmetric", 26, 2, 29, 2, -2))
sketch5.addConstraint(Sketcher.Constraint("Horizontal", 1, 3, 7, 3))
sketch5.addConstraint(Sketcher.Constraint("Horizontal", 13, 3, 0, 2))
sketch5.addConstraint(Sketcher.Constraint("Horizontal", 0, 2, 1, 2))
sketch5.addConstraint(Sketcher.Constraint("Horizontal", 5, 2, 6, 2))
sketch5.addConstraint(Sketcher.Constraint("Horizontal", 4, 2, 9, 2))
sketch5.addConstraint(Sketcher.Constraint("Horizontal", 11, 2, 12, 2))
sketch5.addConstraint(Sketcher.Constraint("Horizontal", 31, 3, 18, 2))
sketch5.addConstraint(Sketcher.Constraint("Horizontal", 29, 2, 30, 2))
sketch5.addConstraint(Sketcher.Constraint("Equal", 0, 2))
sketch5.addConstraint(Sketcher.Constraint("Equal", 2, 6))
sketch5.addConstraint(Sketcher.Constraint("Radius", 1, Q("0.2 mm")))
sketch5.addConstraint(Sketcher.Constraint("DistanceX", 0, 1, 0, 2, Q("0.2 mm")))
sketch5.addConstraint(Sketcher.Constraint("DistanceY", 3, 2, 3, 1, Q("0.3 mm")))
sketch5.addConstraint(Sketcher.Constraint("DistanceY", -1, 1, 1, 3, Q("1 mm")))
sketch5.addConstraint(Sketcher.Constraint("DistanceX", 1, 3, 13, 3, Q("3 mm")))
pad5 = doc.addObject("PartDesign::Pad", "Pad004")
body.addObject(pad5)
pad5.Profile = sketch5
pad5.Length = 0.002
pad5.Reversed = True

# Sketch on XZ plane
sketch6 = doc.addObject("Sketcher::SketchObject", "Sketch005")
body.addObject(sketch6)
sketch6.AttachmentSupport = (doc.XZ_Plane, [""])
sketch6.MapMode = "FlatFace"
sketch6.AttachmentOffset = App.Placement(Vector(0, 0, -0.4), App.Rotation())
add_polygon(sketch6, [(-2, -0.7), (-2, 0.7), (2, 0.7), (2, -0.7)])  # lines 0-3
sketch6.addConstraint(Sketcher.Constraint("Vertical", 0))
sketch6.addConstraint(Sketcher.Constraint("Horizontal", 1))
sketch6.addConstraint(Sketcher.Constraint("Vertical", 2))
sketch6.addConstraint(Sketcher.Constraint("Horizontal", 3))
sketch6.addConstraint(Sketcher.Constraint("Symmetric", 0, 2, 2, 2, -1, 1))
sketch6.addConstraint(Sketcher.Constraint("DistanceX", 1, 1, 1, 2, Q("4.1 mm")))
sketch6.addConstraint(Sketcher.Constraint("DistanceY", 0, 1, 0, 2, Q("1.4 mm")))
pad6 = doc.addObject("PartDesign::Pad", "Pad005")
body.addObject(pad6)
pad6.Profile = sketch6
pad6.Length = 0.75
pad6.Reversed = True
doc.recompute()

fillet = doc.addObject("PartDesign::Fillet", "Fillet")
body.addObject(fillet)
fillet.Base = (pad6, edges_at(pad6, [
    (2.05, 0.775, -0.7),
    (-2.05, 0.775, 0.7),
    (-2.05, 0.775, -0.7),
    (2.05, 0.775, 0.7),
    (-2.05, 1.15, 0),
    (0, 1.15, 0.7),
    (2.05, 1.15, 0),
    (0, 1.15, -0.7),
]))
fillet.Radius = 0.1

doc.recompute()
